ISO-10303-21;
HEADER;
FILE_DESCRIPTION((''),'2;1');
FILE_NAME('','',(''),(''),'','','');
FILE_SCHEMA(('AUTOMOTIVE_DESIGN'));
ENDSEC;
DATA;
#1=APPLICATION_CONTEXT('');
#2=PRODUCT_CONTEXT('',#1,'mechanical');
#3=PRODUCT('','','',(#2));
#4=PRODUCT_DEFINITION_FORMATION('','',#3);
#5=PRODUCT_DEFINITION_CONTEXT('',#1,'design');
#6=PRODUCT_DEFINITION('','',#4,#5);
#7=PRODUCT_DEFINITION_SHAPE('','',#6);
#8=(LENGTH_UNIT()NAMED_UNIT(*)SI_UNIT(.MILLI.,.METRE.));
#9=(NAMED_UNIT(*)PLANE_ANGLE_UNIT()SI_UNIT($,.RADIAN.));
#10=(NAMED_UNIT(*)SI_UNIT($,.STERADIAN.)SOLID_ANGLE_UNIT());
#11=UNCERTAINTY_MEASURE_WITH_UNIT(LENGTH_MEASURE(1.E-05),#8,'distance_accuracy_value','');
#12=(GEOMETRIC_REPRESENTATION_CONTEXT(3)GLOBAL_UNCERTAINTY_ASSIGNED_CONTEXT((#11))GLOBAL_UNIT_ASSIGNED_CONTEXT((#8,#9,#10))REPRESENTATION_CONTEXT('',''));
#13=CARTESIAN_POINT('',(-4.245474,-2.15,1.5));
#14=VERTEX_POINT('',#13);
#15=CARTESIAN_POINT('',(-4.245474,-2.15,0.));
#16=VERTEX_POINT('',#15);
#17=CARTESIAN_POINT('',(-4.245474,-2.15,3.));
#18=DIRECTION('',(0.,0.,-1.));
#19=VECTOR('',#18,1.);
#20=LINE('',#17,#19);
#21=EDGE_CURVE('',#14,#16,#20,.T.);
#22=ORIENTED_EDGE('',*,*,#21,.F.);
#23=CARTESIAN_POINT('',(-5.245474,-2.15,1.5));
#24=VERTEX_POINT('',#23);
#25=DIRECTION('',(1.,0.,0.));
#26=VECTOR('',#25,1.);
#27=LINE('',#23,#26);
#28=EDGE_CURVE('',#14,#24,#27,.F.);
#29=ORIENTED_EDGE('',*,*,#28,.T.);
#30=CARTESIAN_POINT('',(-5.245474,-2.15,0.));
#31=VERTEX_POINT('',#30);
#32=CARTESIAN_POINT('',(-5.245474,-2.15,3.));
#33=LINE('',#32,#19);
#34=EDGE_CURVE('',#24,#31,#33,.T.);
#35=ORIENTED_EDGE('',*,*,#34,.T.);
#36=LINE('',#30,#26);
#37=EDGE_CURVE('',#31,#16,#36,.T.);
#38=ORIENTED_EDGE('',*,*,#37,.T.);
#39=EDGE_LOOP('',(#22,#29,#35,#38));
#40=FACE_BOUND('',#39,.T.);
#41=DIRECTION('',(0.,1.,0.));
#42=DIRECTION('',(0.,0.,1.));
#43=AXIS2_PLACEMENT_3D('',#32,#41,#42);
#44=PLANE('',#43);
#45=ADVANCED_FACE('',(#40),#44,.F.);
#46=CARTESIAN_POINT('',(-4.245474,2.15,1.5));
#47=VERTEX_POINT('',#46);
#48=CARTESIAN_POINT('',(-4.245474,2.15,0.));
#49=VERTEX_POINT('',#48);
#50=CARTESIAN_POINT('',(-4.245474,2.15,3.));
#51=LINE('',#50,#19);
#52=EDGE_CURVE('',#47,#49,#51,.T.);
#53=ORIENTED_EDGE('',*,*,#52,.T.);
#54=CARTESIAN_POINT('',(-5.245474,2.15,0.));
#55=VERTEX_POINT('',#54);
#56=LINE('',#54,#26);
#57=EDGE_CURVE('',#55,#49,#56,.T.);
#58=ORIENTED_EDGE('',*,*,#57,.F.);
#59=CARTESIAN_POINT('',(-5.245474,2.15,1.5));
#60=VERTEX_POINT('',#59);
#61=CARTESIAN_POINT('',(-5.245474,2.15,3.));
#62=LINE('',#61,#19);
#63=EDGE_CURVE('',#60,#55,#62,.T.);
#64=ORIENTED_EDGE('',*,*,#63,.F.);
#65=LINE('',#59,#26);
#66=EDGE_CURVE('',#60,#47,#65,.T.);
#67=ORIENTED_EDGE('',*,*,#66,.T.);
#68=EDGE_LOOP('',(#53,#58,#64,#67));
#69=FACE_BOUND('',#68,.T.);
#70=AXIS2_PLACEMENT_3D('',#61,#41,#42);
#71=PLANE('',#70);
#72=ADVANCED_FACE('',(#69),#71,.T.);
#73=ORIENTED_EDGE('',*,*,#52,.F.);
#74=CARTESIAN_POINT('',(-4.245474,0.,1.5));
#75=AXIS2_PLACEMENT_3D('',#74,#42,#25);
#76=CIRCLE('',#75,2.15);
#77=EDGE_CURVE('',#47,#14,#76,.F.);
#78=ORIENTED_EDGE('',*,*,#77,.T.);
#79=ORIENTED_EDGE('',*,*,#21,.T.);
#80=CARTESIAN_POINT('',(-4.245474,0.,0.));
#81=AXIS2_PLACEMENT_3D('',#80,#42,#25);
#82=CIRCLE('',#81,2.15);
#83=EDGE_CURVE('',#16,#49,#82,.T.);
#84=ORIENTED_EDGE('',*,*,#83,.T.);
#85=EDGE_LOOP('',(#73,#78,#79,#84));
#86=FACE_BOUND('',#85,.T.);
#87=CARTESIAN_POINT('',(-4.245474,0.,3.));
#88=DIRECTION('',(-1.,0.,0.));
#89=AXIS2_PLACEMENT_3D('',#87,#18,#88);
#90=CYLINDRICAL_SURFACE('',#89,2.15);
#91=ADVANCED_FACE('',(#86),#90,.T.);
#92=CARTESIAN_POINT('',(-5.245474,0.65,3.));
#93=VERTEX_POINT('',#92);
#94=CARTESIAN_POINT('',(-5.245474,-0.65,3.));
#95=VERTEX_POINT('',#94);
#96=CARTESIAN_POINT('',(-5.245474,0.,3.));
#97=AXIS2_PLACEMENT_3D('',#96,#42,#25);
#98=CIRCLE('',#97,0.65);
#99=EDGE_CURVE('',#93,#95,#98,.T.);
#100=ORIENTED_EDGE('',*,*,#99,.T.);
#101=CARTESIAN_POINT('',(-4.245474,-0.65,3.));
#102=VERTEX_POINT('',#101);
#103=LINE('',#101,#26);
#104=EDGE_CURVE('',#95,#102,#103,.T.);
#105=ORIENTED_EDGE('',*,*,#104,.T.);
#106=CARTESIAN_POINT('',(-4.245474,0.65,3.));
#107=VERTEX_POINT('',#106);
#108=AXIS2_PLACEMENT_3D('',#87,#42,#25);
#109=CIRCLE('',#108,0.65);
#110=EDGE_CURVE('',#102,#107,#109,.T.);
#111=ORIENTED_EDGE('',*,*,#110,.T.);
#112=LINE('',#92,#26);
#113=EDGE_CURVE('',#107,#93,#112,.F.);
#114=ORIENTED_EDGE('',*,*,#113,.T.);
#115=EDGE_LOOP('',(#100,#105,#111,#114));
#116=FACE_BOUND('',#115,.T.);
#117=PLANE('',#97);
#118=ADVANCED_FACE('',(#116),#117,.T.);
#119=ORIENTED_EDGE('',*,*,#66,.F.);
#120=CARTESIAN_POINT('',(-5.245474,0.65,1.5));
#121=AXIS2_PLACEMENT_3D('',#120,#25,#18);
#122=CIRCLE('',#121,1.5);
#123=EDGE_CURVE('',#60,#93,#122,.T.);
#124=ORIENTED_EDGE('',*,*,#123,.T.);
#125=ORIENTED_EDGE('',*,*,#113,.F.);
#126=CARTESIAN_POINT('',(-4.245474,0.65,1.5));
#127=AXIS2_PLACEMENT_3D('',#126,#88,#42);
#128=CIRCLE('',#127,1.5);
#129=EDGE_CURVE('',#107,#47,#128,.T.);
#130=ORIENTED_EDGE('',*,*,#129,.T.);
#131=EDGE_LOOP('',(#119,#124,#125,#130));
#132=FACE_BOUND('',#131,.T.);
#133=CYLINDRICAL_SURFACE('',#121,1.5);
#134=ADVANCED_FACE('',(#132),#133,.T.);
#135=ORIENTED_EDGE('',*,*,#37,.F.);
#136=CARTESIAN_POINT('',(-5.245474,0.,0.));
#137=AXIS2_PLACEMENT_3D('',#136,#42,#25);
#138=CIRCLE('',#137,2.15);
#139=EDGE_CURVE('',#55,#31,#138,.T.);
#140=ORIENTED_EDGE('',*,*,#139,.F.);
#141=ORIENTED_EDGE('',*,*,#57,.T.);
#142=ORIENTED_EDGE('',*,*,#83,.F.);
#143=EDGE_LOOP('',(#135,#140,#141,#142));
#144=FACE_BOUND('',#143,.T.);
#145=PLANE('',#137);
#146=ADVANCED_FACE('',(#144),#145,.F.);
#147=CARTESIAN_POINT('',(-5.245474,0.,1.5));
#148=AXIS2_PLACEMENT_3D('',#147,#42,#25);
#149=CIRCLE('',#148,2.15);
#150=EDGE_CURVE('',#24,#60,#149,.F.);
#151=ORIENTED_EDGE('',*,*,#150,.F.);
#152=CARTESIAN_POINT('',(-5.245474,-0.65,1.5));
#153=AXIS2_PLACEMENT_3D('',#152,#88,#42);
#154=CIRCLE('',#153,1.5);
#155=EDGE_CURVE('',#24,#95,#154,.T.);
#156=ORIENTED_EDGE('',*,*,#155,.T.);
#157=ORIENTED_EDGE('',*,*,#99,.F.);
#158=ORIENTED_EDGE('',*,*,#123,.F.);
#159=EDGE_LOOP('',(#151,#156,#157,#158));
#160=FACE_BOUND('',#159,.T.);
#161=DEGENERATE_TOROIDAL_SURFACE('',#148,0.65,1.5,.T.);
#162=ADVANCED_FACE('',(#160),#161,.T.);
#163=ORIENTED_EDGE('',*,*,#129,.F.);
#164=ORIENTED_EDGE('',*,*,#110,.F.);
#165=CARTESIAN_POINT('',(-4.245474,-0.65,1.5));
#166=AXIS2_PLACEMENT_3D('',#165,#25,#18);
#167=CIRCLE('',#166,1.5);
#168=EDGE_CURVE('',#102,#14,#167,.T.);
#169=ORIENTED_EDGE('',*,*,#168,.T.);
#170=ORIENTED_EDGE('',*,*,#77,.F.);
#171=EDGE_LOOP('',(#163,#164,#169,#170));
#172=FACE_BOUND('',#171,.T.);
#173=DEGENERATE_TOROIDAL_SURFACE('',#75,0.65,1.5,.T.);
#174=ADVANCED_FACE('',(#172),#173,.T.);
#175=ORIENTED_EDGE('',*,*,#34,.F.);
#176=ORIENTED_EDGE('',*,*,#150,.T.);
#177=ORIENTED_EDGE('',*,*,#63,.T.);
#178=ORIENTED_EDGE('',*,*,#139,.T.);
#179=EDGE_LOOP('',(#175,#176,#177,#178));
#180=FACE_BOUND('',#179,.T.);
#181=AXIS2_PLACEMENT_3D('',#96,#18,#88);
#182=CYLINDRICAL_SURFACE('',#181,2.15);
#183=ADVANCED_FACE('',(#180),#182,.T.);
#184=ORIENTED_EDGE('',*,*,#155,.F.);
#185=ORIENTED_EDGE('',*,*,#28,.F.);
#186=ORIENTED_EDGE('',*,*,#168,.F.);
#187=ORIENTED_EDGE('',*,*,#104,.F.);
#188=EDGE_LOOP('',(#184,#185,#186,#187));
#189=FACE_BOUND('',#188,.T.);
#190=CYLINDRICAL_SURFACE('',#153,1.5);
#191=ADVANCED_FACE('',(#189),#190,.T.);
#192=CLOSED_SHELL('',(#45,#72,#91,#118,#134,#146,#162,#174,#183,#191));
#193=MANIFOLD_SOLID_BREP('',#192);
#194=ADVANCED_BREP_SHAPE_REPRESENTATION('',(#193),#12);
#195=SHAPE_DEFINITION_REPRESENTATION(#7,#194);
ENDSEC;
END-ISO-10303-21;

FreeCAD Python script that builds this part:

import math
import FreeCAD as App
import Part
import Sketcher
Q = App.Units.Quantity


def edges_at(feature, points):
    """Names of the edges that pass closest to the given points."""
    edges = feature.Shape.Edges
    near = lambda p: min(range(len(edges)), key=lambda i: edges[i].distToShape(Part.Vertex(*p))[0])
    return sorted({f"Edge{near(p) + 1}" for p in points})

doc = App.newDocument("Part")
body = doc.addObject("PartDesign::Body", "Body")

sketch1 = body.newObject("Sketcher::SketchObject", "Sketch")
sketch1.AttachmentSupport = (doc.getObject("XY_Plane"), [""])
sketch1.MapMode = "FlatFace"
sketch1.addGeometry([
    Part.LineSegment(App.Vector(-4.2, 2.1, 0), App.Vector(-5.2, 2.1, 0)),
    Part.ArcOfCircle(Part.Circle(App.Vector(-5.2, 0, 0), App.Vector(0, 0, 1), 2.1), math.radians(90), math.radians(270)),
    Part.LineSegment(App.Vector(-5.2, -2.1, 0), App.Vector(-4.2, -2.1, 0)),
    Part.ArcOfCircle(Part.Circle(App.Vector(-4.2, 0, 0), App.Vector(0, 0, 1), 2.1), math.radians(-90), math.radians(90)),
], False)
sketch1.addConstraint([
    Sketcher.Constraint("Tangent", 0, 2, 1, 1),
    Sketcher.Constraint("Tangent", 1, 2, 2, 1),
    Sketcher.Constraint("Tangent", 2, 2, 3, 1),
    Sketcher.Constraint("Tangent", 3, 2, 0, 1),
    Sketcher.Constraint("Horizontal", 0),
    Sketcher.Constraint("Horizontal", 2),
    Sketcher.Constraint("PointOnObject", 1, 3, -1),
    Sketcher.Constraint("DistanceX", 0, 2, 0, 1, Q("1 mm")),
    Sketcher.Constraint("Radius", 1, Q("2.15 mm")),
    Sketcher.Constraint("DistanceX", 1, 3, -1, 1, Q("5.245474 mm")),
])
pad1 = body.newObject("PartDesign::Pad", "Pad")
pad1.Profile = sketch1
pad1.Length = 3
doc.recompute()

fillet = body.newObject("PartDesign::Fillet", "Fillet")
fillet.Base = (pad1, edges_at(pad1, [
    (-2.095, 0, 3),
    (-4.745, 2.15, 3),
    (-7.395, 0, 3),
    (-4.745, -2.15, 3),
]))
fillet.Radius = 1.5

doc.recompute()
